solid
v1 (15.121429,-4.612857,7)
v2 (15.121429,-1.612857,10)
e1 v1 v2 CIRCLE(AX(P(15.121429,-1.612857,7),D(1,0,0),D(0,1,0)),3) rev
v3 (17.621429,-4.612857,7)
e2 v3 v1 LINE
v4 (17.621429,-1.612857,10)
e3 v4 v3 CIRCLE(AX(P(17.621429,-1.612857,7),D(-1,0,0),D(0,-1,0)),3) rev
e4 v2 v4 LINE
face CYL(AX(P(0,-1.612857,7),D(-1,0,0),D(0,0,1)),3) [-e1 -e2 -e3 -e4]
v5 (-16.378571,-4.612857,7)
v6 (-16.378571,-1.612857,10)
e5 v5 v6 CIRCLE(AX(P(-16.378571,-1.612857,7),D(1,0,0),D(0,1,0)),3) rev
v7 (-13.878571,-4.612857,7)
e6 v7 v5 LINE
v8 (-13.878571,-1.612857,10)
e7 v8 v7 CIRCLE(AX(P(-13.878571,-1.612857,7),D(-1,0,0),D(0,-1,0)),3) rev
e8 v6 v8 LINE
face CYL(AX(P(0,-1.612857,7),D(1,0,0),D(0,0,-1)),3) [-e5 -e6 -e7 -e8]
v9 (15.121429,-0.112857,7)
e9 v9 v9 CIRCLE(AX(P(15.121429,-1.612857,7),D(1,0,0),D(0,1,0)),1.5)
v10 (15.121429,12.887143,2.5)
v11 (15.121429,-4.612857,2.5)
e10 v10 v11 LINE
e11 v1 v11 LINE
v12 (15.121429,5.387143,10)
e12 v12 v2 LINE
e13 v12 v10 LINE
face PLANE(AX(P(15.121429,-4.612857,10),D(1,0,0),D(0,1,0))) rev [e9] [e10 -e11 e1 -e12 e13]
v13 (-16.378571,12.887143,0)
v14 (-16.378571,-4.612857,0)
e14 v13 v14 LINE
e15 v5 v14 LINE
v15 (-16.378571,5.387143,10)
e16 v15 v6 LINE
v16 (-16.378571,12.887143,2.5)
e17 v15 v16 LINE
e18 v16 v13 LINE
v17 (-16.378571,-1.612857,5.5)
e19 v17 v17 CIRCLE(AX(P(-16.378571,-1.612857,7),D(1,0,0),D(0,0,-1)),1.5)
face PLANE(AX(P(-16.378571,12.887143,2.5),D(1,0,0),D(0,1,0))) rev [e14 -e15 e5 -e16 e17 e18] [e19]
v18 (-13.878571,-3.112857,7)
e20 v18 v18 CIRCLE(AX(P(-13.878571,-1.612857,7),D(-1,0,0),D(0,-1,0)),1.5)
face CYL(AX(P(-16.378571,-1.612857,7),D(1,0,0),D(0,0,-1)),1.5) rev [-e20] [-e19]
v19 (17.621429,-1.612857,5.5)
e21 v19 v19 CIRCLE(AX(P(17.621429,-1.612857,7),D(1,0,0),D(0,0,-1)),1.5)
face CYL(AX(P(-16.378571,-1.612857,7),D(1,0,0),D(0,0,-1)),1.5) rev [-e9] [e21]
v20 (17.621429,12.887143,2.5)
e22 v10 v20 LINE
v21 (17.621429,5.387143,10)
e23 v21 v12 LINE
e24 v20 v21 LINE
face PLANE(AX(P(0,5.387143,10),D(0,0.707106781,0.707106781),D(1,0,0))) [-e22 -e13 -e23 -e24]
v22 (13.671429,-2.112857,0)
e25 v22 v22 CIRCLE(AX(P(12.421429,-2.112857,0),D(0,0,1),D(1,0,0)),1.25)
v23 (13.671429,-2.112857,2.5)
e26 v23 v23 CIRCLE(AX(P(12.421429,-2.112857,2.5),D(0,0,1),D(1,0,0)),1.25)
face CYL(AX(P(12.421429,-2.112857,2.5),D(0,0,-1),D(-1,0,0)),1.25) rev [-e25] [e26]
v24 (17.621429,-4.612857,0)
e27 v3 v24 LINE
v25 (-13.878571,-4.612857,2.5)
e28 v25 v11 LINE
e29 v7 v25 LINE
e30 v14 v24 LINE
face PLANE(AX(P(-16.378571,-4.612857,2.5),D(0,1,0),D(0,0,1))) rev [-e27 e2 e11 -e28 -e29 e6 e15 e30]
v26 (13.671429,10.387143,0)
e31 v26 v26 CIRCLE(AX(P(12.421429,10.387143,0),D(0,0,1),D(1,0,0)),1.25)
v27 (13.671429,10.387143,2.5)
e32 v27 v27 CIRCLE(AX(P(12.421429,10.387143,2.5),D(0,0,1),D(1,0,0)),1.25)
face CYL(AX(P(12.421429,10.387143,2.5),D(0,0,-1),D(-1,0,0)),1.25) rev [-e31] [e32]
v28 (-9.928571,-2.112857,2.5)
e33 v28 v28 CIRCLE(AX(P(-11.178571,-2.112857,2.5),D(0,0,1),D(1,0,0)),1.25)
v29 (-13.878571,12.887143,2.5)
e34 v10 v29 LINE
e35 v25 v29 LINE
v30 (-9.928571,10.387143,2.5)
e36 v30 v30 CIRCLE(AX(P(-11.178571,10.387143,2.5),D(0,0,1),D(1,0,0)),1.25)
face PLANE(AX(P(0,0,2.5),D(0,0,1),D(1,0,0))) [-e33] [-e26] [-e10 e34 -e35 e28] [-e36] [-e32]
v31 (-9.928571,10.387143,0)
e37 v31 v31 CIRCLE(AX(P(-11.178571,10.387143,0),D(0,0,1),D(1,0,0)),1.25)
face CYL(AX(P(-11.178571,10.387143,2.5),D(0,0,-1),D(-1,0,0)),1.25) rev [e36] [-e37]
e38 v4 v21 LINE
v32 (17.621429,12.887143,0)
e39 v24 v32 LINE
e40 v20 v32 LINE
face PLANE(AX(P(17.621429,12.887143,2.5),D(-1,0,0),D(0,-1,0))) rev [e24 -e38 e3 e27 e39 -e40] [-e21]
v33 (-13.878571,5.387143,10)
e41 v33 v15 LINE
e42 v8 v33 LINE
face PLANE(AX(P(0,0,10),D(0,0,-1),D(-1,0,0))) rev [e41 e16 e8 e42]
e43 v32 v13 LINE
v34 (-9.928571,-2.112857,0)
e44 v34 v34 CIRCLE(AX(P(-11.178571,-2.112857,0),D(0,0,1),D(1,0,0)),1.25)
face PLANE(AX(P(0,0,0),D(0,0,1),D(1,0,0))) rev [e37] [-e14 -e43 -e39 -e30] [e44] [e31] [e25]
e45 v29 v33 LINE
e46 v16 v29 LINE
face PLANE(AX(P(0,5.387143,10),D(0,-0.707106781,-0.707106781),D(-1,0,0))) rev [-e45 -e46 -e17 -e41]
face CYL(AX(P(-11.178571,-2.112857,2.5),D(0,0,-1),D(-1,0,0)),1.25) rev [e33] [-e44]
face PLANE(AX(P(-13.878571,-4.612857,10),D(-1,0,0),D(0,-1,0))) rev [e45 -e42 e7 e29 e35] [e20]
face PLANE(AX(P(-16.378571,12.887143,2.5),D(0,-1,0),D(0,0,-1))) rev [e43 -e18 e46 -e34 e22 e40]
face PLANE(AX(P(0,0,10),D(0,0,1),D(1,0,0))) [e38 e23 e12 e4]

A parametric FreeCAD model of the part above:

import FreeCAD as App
import Part
import Sketcher
from FreeCAD import Vector
Q = App.Units.Quantity


def edges_at(feature, points):
    """Names of the edges that pass closest to the given points."""
    edges = feature.Shape.Edges
    near = lambda p: min(range(len(edges)), key=lambda i: edges[i].distToShape(Part.Vertex(*p))[0])
    return sorted({f"Edge{near(p) + 1}" for p in points})


def add_polygon(sketch, points):
    """Adds a closed chain of lines whose ends are joined by coincident constraints."""
    first, n = sketch.GeometryCount, len(points)
    for a, b in zip(points, points[1:] + points[:1]):
        sketch.addGeometry(Part.LineSegment(App.Vector(*a, 0), App.Vector(*b, 0)), False)
    for i in range(n):
        sketch.addConstraint(Sketcher.Constraint("Coincident", first + i, 2, first + (i + 1) % n, 1))

doc = App.newDocument("Part")
body = doc.addObject("PartDesign::Body", "Body")

sketch1 = body.newObject("Sketcher::SketchObject", "Sketch")
sketch1.AttachmentSupport = (doc.getObject("XY_Plane"), [""])
sketch1.MapMode = "FlatFace"
add_polygon(sketch1, [(-16.4, 12.9), (-16.4, -4.6), (17.6, -4.6), (17.6, 12.9)])
sketch1.addGeometry(Part.Circle(Vector(-11.2, -2.1, 0), Vector(0, 0, 1), 1.2), False)
sketch1.addGeometry(Part.Circle(Vector(12.4, -2.1, 0), Vector(0, 0, 1), 1.2), False)
sketch1.addGeometry(Part.Circle(Vector(-11.2, 10.4, 0), Vector(0, 0, 1), 1.2), False)
sketch1.addGeometry(Part.Circle(Vector(12.4, 10.4, 0), Vector(0, 0, 1), 1.2), False)
sketch1.addConstraint([
    Sketcher.Constraint("Vertical", 0),
    Sketcher.Constraint("Horizontal", 1),
    Sketcher.Constraint("Vertical", 2),
    Sketcher.Constraint("Horizontal", 3),
    Sketcher.Constraint("Equal", 4, 5),
    Sketcher.Constraint("Equal", 5, 6),
    Sketcher.Constraint("Equal", 6, 7),
    Sketcher.Constraint("Horizontal", 4, 3, 5, 3),
    Sketcher.Constraint("Horizontal", 6, 3, 7, 3),
    Sketcher.Constraint("Vertical", 4, 3, 6, 3),
    Sketcher.Constraint("Vertical", 5, 3, 7, 3),
    Sketcher.Constraint("Diameter", 4, Q("2.5 mm")),
    Sketcher.Constraint("DistanceX", 1, 1, 1, 2, Q("34 mm")),
    Sketcher.Constraint("DistanceY", 0, 2, 0, 1, Q("17.5 mm")),
    Sketcher.Constraint("DistanceY", 0, 2, 6, 3, Q("15 mm")),
    Sketcher.Constraint("DistanceY", 5, 3, 2, 2, Q("15 mm")),
    Sketcher.Constraint("DistanceX", 4, 3, 5, 3, Q("23.6 mm")),
    Sketcher.Constraint("DistanceX", 0, 2, 4, 3, Q("5.2 mm")),
    Sketcher.Constraint("DistanceX", 4, 3, -1, 1, Q("11.178571 mm")),
    Sketcher.Constraint("DistanceY", 4, 3, -1, 1, Q("2.112857 mm")),
])
pad1 = body.newObject("PartDesign::Pad", "Pad")
pad1.Profile = sketch1
pad1.Length = 2.5

sketch2 = body.newObject("Sketcher::SketchObject", "Sketch001")
sketch2.AttachmentSupport = (doc.getObject("XY_Plane"), [""])
sketch2.MapMode = "FlatFace"
sketch2.AttachmentOffset = App.Placement(Vector(0, 0, 2.5), App.Rotation())
add_polygon(sketch2, [(-16.4, 12.9), (-16.4, -4.6), (-13.9, -4.6), (-13.9, 12.9)])
add_polygon(sketch2, [(15.1, 12.9), (15.1, -4.6), (17.6, -4.6), (17.6, 12.9)])
sketch2.addConstraint([
    Sketcher.Constraint("Vertical", 0),
    Sketcher.Constraint("Horizontal", 1),
    Sketcher.Constraint("Vertical", 2),
    Sketcher.Constraint("Horizontal", 3),
    Sketcher.Constraint("Vertical", 4),
    Sketcher.Constraint("Horizontal", 5),
    Sketcher.Constraint("Vertical", 6),
    Sketcher.Constraint("Horizontal", 7),
    Sketcher.Constraint("Horizontal", 1, 2, 4, 2),
    Sketcher.Constraint("Horizontal", 3, 2, 6, 2),
    Sketcher.Constraint("Equal", 3, 5),
    Sketcher.Constraint("DistanceX", 1, 1, 1, 2, Q("2.5 mm")),
    Sketcher.Constraint("DistanceY", 0, 2, 0, 1, Q("17.5 mm")),
    Sketcher.Constraint("DistanceX", 1, 2, 4, 2, Q("29 mm")),
    Sketcher.Constraint("DistanceX", 0, 2, -1, 1, Q("16.378571 mm")),
    Sketcher.Constraint("DistanceY", 0, 2, -1, 1, Q("4.612857 mm")),
])
pad2 = body.newObject("PartDesign::Pad", "Pad001")
pad2.Profile = sketch2
pad2.Length = 7.5
doc.recompute()

chamfer = body.newObject("PartDesign::Chamfer", "Chamfer")
chamfer.Base = (pad2, edges_at(pad2, [(16.371, 12.887, 10), (-15.129, 12.887, 10)]))
chamfer.Size = 7.5
doc.recompute()

fillet = body.newObject("PartDesign::Fillet", "Fillet")
fillet.Base = (chamfer, edges_at(chamfer, [(-15.129, -4.613, 10), (16.371, -4.613, 10)]))
fillet.Radius = 3

sketch3 = body.newObject("Sketcher::SketchObject", "Sketch002")
sketch3.AttachmentSupport = (doc.getObject("YZ_Plane"), [""])
sketch3.MapMode = "FlatFace"
sketch3.AttachmentOffset = App.Placement(Vector(0, 0, 17.621429), App.Rotation())
sketch3.addGeometry(Part.Circle(Vector(-1.6, 7, 0), Vector(0, 0, 1), 1.5), False)
sketch3.addConstraint([
    Sketcher.Constraint("Diameter", 0, Q("3 mm")),
    Sketcher.Constraint("DistanceY", -1, 1, 0, 3, Q("7 mm")),
    Sketcher.Constraint("DistanceX", 0, 3, -1, 1, Q("1.612857 mm")),
])
pocket1 = body.newObject("PartDesign::Pocket", "Pocket")
pocket1.Profile = sketch3
pocket1.Type = "ThroughAll"

doc.recompute()
